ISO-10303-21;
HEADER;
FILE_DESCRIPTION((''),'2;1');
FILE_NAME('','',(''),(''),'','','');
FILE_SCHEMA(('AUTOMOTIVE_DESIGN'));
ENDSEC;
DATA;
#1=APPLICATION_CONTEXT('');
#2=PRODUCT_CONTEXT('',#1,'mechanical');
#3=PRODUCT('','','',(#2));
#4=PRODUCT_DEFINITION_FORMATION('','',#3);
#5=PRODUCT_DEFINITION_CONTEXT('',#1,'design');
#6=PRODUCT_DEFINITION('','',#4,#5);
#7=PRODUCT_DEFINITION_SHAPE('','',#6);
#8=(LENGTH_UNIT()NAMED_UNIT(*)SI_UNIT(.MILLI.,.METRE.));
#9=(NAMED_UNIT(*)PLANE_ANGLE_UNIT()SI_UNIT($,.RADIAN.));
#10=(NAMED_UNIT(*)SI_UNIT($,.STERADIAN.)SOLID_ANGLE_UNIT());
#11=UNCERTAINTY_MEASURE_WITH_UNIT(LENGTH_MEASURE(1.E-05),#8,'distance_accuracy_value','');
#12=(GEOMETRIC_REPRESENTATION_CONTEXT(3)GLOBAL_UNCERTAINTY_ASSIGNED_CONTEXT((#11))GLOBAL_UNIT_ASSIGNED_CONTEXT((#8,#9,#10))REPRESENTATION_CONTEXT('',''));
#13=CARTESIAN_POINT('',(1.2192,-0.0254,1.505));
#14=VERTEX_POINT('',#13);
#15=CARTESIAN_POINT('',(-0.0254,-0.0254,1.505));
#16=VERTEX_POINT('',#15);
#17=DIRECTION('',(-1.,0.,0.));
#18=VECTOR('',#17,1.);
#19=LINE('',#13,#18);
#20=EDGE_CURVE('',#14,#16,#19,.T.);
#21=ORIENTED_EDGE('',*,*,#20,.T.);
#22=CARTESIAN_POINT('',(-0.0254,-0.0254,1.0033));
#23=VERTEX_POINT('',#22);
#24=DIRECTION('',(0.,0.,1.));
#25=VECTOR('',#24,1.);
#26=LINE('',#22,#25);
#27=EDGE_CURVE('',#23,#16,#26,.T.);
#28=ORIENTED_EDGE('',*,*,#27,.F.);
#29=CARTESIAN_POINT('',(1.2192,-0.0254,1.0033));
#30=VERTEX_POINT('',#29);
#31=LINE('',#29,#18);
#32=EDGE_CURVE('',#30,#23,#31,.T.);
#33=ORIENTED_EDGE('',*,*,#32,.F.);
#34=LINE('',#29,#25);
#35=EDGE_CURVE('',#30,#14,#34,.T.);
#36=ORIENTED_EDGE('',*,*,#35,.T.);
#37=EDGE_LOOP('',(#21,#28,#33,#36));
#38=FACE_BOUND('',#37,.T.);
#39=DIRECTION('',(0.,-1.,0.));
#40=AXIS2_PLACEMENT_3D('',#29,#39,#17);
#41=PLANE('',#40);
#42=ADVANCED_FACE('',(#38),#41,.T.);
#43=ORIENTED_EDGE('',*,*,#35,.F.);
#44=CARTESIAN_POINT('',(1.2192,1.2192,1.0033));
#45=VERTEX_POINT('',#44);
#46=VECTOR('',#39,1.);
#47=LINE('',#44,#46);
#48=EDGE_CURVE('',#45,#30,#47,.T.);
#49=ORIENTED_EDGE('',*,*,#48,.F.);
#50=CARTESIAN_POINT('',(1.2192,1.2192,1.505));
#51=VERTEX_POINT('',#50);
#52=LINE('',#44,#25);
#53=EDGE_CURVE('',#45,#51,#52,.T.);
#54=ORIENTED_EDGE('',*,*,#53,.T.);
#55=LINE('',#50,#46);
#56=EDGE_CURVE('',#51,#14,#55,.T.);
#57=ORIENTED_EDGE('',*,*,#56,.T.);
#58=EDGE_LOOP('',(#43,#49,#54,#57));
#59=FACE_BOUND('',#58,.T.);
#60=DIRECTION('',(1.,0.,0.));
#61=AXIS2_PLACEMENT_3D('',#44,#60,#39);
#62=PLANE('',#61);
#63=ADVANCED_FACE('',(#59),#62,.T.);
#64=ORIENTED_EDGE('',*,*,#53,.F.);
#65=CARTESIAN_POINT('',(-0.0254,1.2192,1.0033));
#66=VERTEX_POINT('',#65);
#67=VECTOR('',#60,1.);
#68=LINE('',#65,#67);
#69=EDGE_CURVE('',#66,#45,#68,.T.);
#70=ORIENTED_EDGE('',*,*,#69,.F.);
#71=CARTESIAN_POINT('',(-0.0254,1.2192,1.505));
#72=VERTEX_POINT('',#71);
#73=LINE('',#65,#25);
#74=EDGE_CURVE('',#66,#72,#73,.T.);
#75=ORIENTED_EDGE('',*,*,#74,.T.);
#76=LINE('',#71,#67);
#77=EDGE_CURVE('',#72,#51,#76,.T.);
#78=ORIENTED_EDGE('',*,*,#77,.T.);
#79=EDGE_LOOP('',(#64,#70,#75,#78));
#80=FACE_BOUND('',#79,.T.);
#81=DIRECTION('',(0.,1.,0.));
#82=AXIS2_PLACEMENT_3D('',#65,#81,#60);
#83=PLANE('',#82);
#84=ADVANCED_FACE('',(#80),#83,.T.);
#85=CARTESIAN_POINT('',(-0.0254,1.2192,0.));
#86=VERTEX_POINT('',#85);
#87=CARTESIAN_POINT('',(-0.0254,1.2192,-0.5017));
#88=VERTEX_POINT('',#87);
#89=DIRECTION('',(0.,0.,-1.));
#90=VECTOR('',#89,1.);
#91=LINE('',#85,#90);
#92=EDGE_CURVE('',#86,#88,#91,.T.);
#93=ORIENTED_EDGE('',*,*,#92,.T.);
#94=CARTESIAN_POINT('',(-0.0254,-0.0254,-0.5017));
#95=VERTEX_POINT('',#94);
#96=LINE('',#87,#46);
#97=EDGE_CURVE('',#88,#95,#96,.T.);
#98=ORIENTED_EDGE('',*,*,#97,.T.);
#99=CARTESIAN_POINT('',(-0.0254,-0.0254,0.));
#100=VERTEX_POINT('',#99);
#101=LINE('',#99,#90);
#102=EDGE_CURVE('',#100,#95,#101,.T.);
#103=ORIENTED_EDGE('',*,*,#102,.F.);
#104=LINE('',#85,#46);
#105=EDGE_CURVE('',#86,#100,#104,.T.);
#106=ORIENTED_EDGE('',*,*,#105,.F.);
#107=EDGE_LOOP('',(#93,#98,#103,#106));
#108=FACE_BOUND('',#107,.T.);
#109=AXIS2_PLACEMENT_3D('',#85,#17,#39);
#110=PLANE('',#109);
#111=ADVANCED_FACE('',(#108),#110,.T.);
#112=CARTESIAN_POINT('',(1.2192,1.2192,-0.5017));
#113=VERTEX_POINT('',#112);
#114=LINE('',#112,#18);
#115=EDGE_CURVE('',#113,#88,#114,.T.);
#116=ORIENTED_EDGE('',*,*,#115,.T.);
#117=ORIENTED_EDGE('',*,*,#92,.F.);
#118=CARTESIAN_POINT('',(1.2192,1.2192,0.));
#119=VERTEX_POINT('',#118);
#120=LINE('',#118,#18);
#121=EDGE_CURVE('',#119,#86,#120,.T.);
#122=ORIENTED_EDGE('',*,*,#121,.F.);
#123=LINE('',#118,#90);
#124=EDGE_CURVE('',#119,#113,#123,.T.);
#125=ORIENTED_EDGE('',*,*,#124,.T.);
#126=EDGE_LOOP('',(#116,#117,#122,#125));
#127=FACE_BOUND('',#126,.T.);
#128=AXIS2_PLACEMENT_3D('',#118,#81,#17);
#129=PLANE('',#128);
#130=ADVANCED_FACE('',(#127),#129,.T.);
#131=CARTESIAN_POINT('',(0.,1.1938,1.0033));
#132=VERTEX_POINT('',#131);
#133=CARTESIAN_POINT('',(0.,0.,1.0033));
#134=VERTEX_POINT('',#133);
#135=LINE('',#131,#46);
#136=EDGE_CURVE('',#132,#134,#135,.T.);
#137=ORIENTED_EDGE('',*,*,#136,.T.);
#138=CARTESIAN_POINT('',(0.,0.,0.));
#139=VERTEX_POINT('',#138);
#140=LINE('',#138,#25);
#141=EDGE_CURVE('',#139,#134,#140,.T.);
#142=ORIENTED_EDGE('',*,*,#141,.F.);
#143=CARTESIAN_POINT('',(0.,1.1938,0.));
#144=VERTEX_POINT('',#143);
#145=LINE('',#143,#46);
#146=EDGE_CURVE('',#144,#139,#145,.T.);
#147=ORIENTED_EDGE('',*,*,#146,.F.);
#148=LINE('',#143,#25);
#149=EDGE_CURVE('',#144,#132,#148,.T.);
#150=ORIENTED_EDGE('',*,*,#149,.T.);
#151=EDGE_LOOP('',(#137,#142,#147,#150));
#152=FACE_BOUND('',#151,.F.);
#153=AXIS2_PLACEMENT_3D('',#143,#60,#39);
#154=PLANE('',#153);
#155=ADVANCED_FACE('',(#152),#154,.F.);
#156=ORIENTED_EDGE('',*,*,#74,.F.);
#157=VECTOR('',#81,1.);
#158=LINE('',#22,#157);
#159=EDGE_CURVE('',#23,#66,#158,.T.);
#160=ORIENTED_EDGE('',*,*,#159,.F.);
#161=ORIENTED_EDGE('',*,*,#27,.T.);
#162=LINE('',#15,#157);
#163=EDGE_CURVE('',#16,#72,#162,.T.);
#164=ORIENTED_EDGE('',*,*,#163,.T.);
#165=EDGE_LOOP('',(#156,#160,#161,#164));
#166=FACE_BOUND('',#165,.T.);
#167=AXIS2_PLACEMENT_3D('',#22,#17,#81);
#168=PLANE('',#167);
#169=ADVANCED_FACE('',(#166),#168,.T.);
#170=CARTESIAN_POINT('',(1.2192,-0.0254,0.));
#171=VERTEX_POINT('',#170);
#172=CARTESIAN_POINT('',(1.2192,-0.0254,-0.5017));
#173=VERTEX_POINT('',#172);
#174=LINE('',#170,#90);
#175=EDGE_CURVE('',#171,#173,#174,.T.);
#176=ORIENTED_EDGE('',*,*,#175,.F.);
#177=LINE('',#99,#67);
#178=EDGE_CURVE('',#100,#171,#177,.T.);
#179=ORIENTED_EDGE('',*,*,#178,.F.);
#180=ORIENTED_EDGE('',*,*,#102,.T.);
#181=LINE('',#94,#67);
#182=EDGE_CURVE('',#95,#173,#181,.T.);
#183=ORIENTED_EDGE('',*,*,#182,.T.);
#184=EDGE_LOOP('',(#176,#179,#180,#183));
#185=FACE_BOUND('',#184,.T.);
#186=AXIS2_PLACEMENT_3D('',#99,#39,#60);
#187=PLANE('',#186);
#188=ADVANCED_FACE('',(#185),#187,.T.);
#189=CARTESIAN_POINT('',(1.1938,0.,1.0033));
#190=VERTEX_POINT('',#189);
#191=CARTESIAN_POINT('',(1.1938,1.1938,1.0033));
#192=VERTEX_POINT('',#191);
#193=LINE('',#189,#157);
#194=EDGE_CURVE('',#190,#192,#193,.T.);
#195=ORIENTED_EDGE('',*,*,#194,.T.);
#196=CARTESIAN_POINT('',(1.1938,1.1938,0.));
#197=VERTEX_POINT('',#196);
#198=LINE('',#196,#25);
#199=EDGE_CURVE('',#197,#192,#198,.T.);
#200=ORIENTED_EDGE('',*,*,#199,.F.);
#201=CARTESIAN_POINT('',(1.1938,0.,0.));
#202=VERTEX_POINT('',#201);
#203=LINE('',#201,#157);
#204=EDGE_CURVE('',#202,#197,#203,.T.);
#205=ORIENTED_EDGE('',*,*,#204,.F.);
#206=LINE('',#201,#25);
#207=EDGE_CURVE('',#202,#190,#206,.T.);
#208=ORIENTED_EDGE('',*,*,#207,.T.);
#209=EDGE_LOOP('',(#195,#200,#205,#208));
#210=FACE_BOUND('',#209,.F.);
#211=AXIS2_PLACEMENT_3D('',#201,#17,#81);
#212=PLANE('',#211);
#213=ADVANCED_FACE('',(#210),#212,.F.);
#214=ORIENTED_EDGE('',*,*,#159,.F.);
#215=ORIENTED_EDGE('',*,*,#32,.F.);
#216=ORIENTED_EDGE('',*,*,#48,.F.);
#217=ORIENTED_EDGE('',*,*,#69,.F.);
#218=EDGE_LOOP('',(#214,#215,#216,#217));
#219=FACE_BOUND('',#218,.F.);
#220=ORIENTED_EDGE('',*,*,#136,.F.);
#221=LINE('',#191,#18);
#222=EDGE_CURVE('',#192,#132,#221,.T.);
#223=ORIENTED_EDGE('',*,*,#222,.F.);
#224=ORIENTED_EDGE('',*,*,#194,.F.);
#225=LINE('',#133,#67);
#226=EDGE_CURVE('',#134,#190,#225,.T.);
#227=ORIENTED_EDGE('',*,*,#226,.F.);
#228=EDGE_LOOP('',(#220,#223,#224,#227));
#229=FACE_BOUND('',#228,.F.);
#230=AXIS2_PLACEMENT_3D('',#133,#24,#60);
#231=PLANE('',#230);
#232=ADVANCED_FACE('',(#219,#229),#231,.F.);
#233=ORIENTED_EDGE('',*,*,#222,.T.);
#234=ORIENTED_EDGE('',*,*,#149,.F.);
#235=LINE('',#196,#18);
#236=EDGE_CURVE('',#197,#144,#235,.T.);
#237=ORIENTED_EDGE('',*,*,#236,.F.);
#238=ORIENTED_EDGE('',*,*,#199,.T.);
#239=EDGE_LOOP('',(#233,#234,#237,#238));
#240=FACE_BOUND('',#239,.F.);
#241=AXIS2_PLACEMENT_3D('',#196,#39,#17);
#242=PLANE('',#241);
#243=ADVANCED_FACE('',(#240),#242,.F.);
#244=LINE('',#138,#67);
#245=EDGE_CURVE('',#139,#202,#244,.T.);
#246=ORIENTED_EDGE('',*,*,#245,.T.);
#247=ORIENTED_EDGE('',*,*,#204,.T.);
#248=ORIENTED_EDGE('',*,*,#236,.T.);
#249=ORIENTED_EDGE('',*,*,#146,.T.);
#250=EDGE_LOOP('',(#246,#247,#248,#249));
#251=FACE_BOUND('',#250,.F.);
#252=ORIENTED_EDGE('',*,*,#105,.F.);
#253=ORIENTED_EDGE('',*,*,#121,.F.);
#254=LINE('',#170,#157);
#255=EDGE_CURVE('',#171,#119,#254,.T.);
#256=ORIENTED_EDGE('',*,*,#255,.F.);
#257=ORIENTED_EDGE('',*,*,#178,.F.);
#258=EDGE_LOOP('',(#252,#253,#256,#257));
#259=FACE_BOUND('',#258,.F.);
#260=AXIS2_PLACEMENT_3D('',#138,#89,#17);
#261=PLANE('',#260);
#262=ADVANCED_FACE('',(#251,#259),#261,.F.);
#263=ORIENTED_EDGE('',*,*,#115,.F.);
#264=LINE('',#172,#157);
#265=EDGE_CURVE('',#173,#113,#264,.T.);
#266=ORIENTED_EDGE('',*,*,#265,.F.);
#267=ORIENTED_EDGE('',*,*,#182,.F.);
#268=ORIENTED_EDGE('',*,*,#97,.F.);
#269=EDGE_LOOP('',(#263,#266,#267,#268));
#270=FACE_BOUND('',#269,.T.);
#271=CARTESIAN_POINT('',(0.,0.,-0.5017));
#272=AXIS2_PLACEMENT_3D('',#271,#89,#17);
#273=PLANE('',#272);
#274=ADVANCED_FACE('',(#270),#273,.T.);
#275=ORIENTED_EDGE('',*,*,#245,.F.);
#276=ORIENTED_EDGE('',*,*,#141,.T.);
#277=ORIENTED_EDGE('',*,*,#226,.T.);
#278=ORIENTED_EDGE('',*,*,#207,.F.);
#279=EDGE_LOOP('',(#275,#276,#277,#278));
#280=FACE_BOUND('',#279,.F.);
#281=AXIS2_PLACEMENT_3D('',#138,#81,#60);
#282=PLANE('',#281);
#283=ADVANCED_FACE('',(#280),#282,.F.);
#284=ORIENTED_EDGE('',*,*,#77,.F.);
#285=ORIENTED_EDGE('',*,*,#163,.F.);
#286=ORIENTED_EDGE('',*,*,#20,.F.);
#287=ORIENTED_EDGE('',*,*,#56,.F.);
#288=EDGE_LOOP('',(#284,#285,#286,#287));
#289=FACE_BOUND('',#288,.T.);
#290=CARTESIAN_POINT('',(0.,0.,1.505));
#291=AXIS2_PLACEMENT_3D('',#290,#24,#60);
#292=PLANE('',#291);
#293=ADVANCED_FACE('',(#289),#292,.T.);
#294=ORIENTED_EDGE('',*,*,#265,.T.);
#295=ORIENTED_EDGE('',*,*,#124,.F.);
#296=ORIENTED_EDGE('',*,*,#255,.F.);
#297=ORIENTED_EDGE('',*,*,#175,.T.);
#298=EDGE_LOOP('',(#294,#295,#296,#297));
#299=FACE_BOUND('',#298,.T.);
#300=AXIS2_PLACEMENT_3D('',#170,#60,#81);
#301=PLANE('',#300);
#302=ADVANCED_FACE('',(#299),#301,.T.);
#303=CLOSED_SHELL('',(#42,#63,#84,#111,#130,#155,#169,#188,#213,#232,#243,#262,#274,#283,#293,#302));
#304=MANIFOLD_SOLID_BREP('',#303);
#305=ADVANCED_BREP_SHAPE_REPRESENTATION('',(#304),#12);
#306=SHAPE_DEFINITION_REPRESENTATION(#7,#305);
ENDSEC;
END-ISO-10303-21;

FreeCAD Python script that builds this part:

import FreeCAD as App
import Part
import Sketcher

V = App.Vector
Q = App.Units.Quantity


def add_polygon(sketch, points):
    """Adds a closed chain of lines whose ends are joined by coincident constraints."""
    first, n = sketch.GeometryCount, len(points)
    for a, b in zip(points, points[1:] + points[:1]):
        sketch.addGeometry(Part.LineSegment(App.Vector(*a, 0), App.Vector(*b, 0)), False)
    for i in range(n):
        sketch.addConstraint(Sketcher.Constraint("Coincident", first + i, 2, first + (i + 1) % n, 1))

doc = App.newDocument("Part")
params = doc.addObject("Spreadsheet::Sheet", "Params")
for row, (alias, value) in enumerate([
    ("sketch1_width", "0.047 in"),
    ("pad1_length", "0.0395 in"),
    ("sketch2_width", "0.049 in"),
    ("pad2_length", "0.5017 mm"),
    ("sketch3_width", "0.049 in"),
    ("pad3_length", "0.5017 mm"),
], start=1):
    params.set(f"A{row}", alias)
    params.set(f"B{row}", "=" + value)
    params.setAlias(f"B{row}", alias)

body = doc.addObject("PartDesign::Body", "Body")

# Sketch on XY plane
sketch1 = body.newObject("Sketcher::SketchObject", "Sketch")
sketch1.AttachmentSupport = (doc.getObject("XY_Plane"), [""])
sketch1.MapMode = "FlatFace"
add_polygon(sketch1, [(0, 1.1938), (0, 0), (1.1938, 0), (1.1938, 1.1938)])  # lines 0-3
sketch1.addConstraint([
    Sketcher.Constraint("Vertical", 0),
    Sketcher.Constraint("Horizontal", 1),
    Sketcher.Constraint("Vertical", 2),
    Sketcher.Constraint("Horizontal", 3),
    Sketcher.Constraint("Coincident", 0, 2, -1, 1),
    Sketcher.Constraint("Equal", 3, 0),
    Sketcher.Constraint("DistanceX", 1, 1, 1, 2, Q("0.047 in")),
])
sketch1.setExpression("Constraints[10]", "Params.sketch1_width")
pad1 = body.newObject("PartDesign::Pad", "Pad")
pad1.Profile = sketch1
pad1.setExpression("Length", "Params.pad1_length")

# Sketch on XY plane
sketch2 = body.newObject("Sketcher::SketchObject", "Sketch001")
sketch2.AttachmentSupport = (doc.getObject("XY_Plane"), [""])
sketch2.MapMode = "FlatFace"
sketch2.AttachmentOffset = App.Placement(V(0, 0, 0.0395 * 25.4), App.Rotation())
add_polygon(sketch2, [(1.2192, 1.2192), (-0.0254, 1.2192), (-0.0254, -0.0254), (1.2192, -0.0254)])  # lines 0-3
sketch2.addConstraint([
    Sketcher.Constraint("Horizontal", 0),
    Sketcher.Constraint("Vertical", 1),
    Sketcher.Constraint("Horizontal", 2),
    Sketcher.Constraint("Vertical", 3),
    Sketcher.Constraint("Equal", 2, 1),
    Sketcher.Constraint("DistanceX", 0, 2, -1, 1, Q("0.001 in")),
    Sketcher.Constraint("DistanceY", 1, 2, -1, 1, Q("0.001 in")),
    Sketcher.Constraint("DistanceX", 0, 2, 0, 1, Q("0.049 in")),
])
sketch2.setExpression("Constraints[11]", "Params.sketch2_width")
pad2 = body.newObject("PartDesign::Pad", "Pad001")
pad2.Profile = sketch2
pad2.setExpression("Length", "Params.pad2_length")

# Sketch on XY plane
sketch3 = body.newObject("Sketcher::SketchObject", "Sketch002")
sketch3.AttachmentSupport = (doc.getObject("XY_Plane"), [""])
sketch3.MapMode = "FlatFace"
add_polygon(sketch3, [(-0.0254, 1.2192), (1.2192, 1.2192), (1.2192, -0.0254), (-0.0254, -0.0254)])  # lines 0-3
sketch3.addConstraint([
    Sketcher.Constraint("Horizontal", 0),
    Sketcher.Constraint("Vertical", 1),
    Sketcher.Constraint("Horizontal", 2),
    Sketcher.Constraint("Vertical", 3),
    Sketcher.Constraint("Equal", 2, 1),
    Sketcher.Constraint("DistanceX", 0, 1, 0, 2, Q("0.049 in")),
    Sketcher.Constraint("DistanceX", -1, 1, 0, 2, Q("0.048 in")),
    Sketcher.Constraint("DistanceY", -1, 1, 0, 2, Q("0.048 in")),
])
sketch3.setExpression("Constraints[9]", "Params.sketch3_width")
pad3 = body.newObject("PartDesign::Pad", "Pad002")
pad3.Profile = sketch3
pad3.setExpression("Length", "Params.pad3_length")
pad3.Reversed = True

doc.recompute()
